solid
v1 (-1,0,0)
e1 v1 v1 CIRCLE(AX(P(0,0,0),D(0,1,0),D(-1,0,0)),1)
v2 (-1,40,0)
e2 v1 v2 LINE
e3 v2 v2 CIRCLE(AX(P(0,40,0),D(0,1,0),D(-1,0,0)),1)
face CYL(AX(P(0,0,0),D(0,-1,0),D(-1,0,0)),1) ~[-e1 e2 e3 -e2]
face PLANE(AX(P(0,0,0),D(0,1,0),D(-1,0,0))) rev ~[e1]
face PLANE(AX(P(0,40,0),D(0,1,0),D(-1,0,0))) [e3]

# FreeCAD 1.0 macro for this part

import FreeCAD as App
import Part
import Sketcher
from FreeCAD import Vector
Q = App.Units.Quantity

doc = App.newDocument("Part")
params = doc.addObject("Spreadsheet::Sheet", "Params")
for row, (alias, value) in enumerate([
    ("sketch1_diameter", "2 mm"),
    ("pad1_length", "40 mm"),
], start=1):
    params.set(f"A{row}", alias)
    params.set(f"B{row}", "=" + value)
    params.setAlias(f"B{row}", alias)

body = doc.addObject("PartDesign::Body", "Body")

# Sketch on XZ plane
sketch1 = body.newObject("Sketcher::SketchObject", "Sketch")
sketch1.AttachmentSupport = (doc.getObject("XZ_Plane"), [""])
sketch1.MapMode = "FlatFace"
sketch1.addGeometry(Part.Circle(Vector(0, 0, 0), Vector(0, 0, 1), 1), False)
sketch1.addConstraint(Sketcher.Constraint("Coincident", 0, 3, -1, 1))
sketch1.addConstraint(Sketcher.Constraint("Diameter", 0, Q("2 mm")))
sketch1.setExpression("Constraints[1]", "Params.sketch1_diameter")
pad1 = body.newObject("PartDesign::Pad", "Pad")
pad1.Profile = sketch1
pad1.setExpression("Length", "Params.pad1_length")
pad1.Reversed = True

doc.recompute()
